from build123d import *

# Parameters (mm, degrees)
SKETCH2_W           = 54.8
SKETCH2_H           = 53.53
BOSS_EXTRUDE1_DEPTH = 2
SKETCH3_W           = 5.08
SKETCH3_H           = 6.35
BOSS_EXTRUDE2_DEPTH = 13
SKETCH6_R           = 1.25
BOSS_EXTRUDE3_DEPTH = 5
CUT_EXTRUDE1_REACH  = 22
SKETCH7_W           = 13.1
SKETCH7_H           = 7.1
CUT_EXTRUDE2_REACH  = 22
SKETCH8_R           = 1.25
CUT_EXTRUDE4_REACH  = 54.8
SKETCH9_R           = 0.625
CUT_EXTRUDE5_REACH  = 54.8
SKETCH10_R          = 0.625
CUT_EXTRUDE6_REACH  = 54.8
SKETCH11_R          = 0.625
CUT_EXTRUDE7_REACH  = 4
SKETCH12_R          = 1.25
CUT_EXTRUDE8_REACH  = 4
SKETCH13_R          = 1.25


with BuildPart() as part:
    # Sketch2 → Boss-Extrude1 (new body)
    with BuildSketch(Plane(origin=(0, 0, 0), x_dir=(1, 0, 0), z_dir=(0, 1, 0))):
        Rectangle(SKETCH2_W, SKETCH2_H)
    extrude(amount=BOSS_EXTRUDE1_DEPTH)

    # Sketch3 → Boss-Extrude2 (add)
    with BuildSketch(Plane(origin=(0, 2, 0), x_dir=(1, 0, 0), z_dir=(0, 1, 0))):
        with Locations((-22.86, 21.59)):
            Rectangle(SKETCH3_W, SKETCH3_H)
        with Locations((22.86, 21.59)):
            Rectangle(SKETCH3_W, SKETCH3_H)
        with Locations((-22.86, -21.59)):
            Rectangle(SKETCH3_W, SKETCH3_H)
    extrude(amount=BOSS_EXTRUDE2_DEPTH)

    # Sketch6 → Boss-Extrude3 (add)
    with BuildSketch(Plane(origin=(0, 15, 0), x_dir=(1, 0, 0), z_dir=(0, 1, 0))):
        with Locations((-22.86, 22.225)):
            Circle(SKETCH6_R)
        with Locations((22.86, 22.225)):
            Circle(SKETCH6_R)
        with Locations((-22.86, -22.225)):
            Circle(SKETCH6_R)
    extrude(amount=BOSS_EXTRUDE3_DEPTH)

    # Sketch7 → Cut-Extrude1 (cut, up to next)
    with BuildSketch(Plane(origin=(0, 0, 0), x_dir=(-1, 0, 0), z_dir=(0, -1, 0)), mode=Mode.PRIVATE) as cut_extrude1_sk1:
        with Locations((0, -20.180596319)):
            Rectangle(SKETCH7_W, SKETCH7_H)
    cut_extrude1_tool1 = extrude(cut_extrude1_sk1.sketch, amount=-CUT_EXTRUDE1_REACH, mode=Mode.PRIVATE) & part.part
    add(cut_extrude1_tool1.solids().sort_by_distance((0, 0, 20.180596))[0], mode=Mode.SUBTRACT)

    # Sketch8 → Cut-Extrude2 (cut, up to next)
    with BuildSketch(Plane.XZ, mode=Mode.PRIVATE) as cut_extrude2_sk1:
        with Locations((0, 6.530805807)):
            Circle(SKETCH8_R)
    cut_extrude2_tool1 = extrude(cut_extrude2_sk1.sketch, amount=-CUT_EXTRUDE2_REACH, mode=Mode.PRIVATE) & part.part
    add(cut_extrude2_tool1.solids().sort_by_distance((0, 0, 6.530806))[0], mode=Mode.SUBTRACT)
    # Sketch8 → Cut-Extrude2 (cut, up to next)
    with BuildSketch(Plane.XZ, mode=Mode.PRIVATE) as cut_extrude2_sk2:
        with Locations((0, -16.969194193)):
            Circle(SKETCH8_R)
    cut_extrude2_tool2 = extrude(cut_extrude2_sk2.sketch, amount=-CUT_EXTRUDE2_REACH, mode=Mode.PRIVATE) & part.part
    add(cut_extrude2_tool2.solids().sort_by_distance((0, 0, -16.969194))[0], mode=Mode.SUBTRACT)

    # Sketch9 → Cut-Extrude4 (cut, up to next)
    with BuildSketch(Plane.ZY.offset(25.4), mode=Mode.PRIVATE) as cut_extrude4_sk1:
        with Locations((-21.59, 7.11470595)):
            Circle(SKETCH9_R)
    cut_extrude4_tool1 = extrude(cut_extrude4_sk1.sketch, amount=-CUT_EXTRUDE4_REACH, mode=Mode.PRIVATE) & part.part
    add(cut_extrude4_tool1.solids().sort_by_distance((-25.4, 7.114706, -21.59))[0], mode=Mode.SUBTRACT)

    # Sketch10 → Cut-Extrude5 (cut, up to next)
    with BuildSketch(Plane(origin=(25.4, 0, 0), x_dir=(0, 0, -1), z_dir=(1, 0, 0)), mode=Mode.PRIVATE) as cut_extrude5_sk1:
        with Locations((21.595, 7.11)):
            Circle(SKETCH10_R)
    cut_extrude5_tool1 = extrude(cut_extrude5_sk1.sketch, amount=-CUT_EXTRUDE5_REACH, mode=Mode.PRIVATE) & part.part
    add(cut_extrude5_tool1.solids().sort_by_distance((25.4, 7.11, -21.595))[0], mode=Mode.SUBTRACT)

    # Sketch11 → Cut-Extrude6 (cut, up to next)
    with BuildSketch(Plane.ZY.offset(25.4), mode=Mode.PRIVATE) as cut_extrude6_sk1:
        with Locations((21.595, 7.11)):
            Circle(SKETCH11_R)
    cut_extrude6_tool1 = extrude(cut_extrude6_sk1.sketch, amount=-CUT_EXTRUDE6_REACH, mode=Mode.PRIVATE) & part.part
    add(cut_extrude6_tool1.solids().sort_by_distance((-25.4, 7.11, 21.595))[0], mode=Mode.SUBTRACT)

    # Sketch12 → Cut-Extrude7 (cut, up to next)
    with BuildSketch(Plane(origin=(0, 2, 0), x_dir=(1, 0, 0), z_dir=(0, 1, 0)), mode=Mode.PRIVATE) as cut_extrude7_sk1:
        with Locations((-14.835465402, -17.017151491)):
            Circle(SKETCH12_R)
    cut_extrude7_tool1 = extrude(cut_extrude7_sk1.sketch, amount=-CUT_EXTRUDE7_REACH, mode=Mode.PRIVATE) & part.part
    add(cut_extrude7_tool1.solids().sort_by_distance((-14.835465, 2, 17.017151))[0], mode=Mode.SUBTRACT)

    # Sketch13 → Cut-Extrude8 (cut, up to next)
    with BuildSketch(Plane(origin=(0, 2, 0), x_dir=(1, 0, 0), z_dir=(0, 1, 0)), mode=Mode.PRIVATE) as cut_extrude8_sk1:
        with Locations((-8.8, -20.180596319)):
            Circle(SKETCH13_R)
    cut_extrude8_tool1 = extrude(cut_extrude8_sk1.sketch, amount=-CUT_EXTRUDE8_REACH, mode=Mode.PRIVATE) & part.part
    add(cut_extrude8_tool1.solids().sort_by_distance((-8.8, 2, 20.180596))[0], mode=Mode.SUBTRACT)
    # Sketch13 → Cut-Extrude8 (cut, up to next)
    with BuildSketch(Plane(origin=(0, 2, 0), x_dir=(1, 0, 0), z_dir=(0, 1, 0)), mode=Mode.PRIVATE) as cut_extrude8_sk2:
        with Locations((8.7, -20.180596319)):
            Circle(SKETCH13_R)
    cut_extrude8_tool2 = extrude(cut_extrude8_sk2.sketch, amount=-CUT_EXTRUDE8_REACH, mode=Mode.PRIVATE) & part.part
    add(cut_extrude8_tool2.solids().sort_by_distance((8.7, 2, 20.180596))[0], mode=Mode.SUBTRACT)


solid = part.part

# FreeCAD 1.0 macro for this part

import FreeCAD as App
import Part
import Sketcher

V = App.Vector
Q = App.Units.Quantity


def add_polygon(sketch, points):
    """Adds a closed chain of lines whose ends are joined by coincident constraints."""
    first, n = sketch.GeometryCount, len(points)
    for a, b in zip(points, points[1:] + points[:1]):
        sketch.addGeometry(Part.LineSegment(App.Vector(*a, 0), App.Vector(*b, 0)), False)
    for i in range(n):
        sketch.addConstraint(Sketcher.Constraint("Coincident", first + i, 2, first + (i + 1) % n, 1))

doc = App.newDocument("Part")
body = doc.addObject("PartDesign::Body", "Body")

sketch1 = body.newObject("Sketcher::SketchObject", "Sketch")
sketch1.AttachmentSupport = (doc.getObject("XZ_Plane"), [""])
sketch1.MapMode = "FlatFace"
add_polygon(sketch1, [(-27.4, -26.765), (-27.4, 26.765), (27.4, 26.765), (27.4, -26.765)])
sketch1.addConstraint([
    Sketcher.Constraint("Vertical", 0),
    Sketcher.Constraint("Horizontal", 1),
    Sketcher.Constraint("Vertical", 2),
    Sketcher.Constraint("Horizontal", 3),
    Sketcher.Constraint("Symmetric", 0, 2, 2, 2, -1, 1),
    Sketcher.Constraint("DistanceX", 1, 1, 1, 2, Q("54.8 mm")),
    Sketcher.Constraint("DistanceY", 0, 1, 0, 2, Q("53.53 mm")),
])
pad1 = body.newObject("PartDesign::Pad", "Pad")
pad1.Profile = sketch1
pad1.Length = 2
pad1.Reversed = True

sketch2 = body.newObject("Sketcher::SketchObject", "Sketch001")
sketch2.AttachmentSupport = (doc.getObject("XZ_Plane"), [""])
sketch2.MapMode = "FlatFace"
sketch2.AttachmentOffset = App.Placement(V(0, 0, -2), App.Rotation())
add_polygon(sketch2, [(-25.4, -24.765), (-25.4, -18.415), (-20.32, -18.415), (-20.32, -24.765)])
add_polygon(sketch2, [(20.32, -24.765), (20.32, -18.415), (25.4, -18.415), (25.4, -24.765)])
add_polygon(sketch2, [(-25.4, 18.415), (-25.4, 24.765), (-20.32, 24.765), (-20.32, 18.415)])
sketch2.addConstraint([
    Sketcher.Constraint("Vertical", 0),
    Sketcher.Constraint("Horizontal", 1),
    Sketcher.Constraint("Vertical", 2),
    Sketcher.Constraint("Horizontal", 3),
    Sketcher.Constraint("Vertical", 4),
    Sketcher.Constraint("Horizontal", 5),
    Sketcher.Constraint("Vertical", 6),
    Sketcher.Constraint("Horizontal", 7),
    Sketcher.Constraint("Vertical", 8),
    Sketcher.Constraint("Horizontal", 9),
    Sketcher.Constraint("Vertical", 10),
    Sketcher.Constraint("Horizontal", 11),
    Sketcher.Constraint("Symmetric", 6, 2, 8, 2, -1, 1),
    Sketcher.Constraint("Symmetric", 4, 2, 10, 2, -1, 1),
    Sketcher.Constraint("Symmetric", 1, 2, 4, 2, -2),
    Sketcher.Constraint("Symmetric", 3, 2, 6, 2, -2),
    Sketcher.Constraint("DistanceX", 1, 1, 1, 2, Q("5.08 mm")),
    Sketcher.Constraint("DistanceY", 0, 1, 0, 2, Q("6.35 mm")),
    Sketcher.Constraint("DistanceX", 0, 2, -1, 1, Q("25.4 mm")),
    Sketcher.Constraint("DistanceY", 0, 2, 8, 2, Q("43.18 mm")),
])
pad2 = body.newObject("PartDesign::Pad", "Pad001")
pad2.Profile = sketch2
pad2.Length = 13
pad2.Reversed = True

sketch3 = body.newObject("Sketcher::SketchObject", "Sketch002")
sketch3.AttachmentSupport = (doc.getObject("XZ_Plane"), [""])
sketch3.MapMode = "FlatFace"
sketch3.AttachmentOffset = App.Placement(V(0, 0, -15), App.Rotation())
sketch3.addGeometry([
    Part.Circle(V(-22.86, -22.225, 0), V(0, 0, 1), 1.25),
    Part.Circle(V(22.86, -22.225, 0), V(0, 0, 1), 1.25),
    Part.Circle(V(-22.86, 22.225, 0), V(0, 0, 1), 1.25),
], False)
sketch3.addConstraint([
    Sketcher.Constraint("Equal", 0, 1),
    Sketcher.Constraint("Equal", 1, 2),
    Sketcher.Constraint("Symmetric", 1, 3, 2, 3, -1, 1),
    Sketcher.Constraint("Symmetric", 0, 3, 1, 3, -2),
    Sketcher.Constraint("Diameter", 0, Q("2.5 mm")),
    Sketcher.Constraint("DistanceX", 0, 3, -1, 1, Q("22.86 mm")),
    Sketcher.Constraint("DistanceY", 0, 3, 2, 3, Q("44.45 mm")),
])
pad3 = body.newObject("PartDesign::Pad", "Pad002")
pad3.Profile = sketch3
pad3.Length = 5
pad3.Reversed = True

sketch4 = body.newObject("Sketcher::SketchObject", "Sketch003")
sketch4.AttachmentSupport = (doc.getObject("XZ_Plane"), [""])
sketch4.MapMode = "FlatFace"
add_polygon(sketch4, [(6.55, 16.630596), (6.55, 23.730596), (-6.55, 23.730596), (-6.55, 16.630596)])
sketch4.addConstraint([
    Sketcher.Constraint("Vertical", 0),
    Sketcher.Constraint("Horizontal", 1),
    Sketcher.Constraint("Vertical", 2),
    Sketcher.Constraint("Horizontal", 3),
    Sketcher.Constraint("DistanceX", 1, 2, 1, 1, Q("13.1 mm")),
    Sketcher.Constraint("DistanceY", 0, 1, 0, 2, Q("7.1 mm")),
    Sketcher.Constraint("DistanceX", -1, 1, 0, 2, Q("6.55 mm")),
    Sketcher.Constraint("DistanceY", -1, 1, 0, 2, Q("23.730596 mm")),
])
pocket1 = body.newObject("PartDesign::Pocket", "Pocket")
pocket1.Profile = sketch4
pocket1.Type = "UpToFirst"

sketch5 = body.newObject("Sketcher::SketchObject", "Sketch004")
sketch5.AttachmentSupport = (doc.getObject("XZ_Plane"), [""])
sketch5.MapMode = "FlatFace"
sketch5.addGeometry(Part.Circle(V(0, 6.530806, 0), V(0, 0, 1), 1.25), False)
sketch5.addConstraint([
    Sketcher.Constraint("PointOnObject", 0, 3, -2),
    Sketcher.Constraint("Diameter", 0, Q("2.5 mm")),
    Sketcher.Constraint("DistanceY", -1, 1, 0, 3, Q("6.530806 mm")),
])
pocket2 = body.newObject("PartDesign::Pocket", "Pocket001")
pocket2.Profile = sketch5
pocket2.Type = "UpToFirst"

sketch6 = body.newObject("Sketcher::SketchObject", "Sketch005")
sketch6.AttachmentSupport = (doc.getObject("XZ_Plane"), [""])
sketch6.MapMode = "FlatFace"
sketch6.addGeometry(Part.Circle(V(0, -16.969194, 0), V(0, 0, 1), 1.25), False)
sketch6.addConstraint([
    Sketcher.Constraint("PointOnObject", 0, 3, -2),
    Sketcher.Constraint("Diameter", 0, Q("2.5 mm")),
    Sketcher.Constraint("DistanceY", 0, 3, -1, 1, Q("16.969194 mm")),
])
pocket3 = body.newObject("PartDesign::Pocket", "Pocket002")
pocket3.Profile = sketch6
pocket3.Type = "UpToFirst"

sketch7 = body.newObject("Sketcher::SketchObject", "Sketch006")
sketch7.AttachmentSupport = (doc.getObject("YZ_Plane"), [""])
sketch7.MapMode = "FlatFace"
sketch7.AttachmentOffset = App.Placement(V(0, 0, -25.4), App.Rotation())
sketch7.addGeometry(Part.Circle(V(7.114706, -21.59, 0), V(0, 0, 1), 0.625), False)
sketch7.addConstraint([
    Sketcher.Constraint("Diameter", 0, Q("1.25 mm")),
    Sketcher.Constraint("DistanceY", 0, 3, -1, 1, Q("21.59 mm")),
    Sketcher.Constraint("DistanceX", -1, 1, 0, 3, Q("7.114706 mm")),
])
pocket4 = body.newObject("PartDesign::Pocket", "Pocket003")
pocket4.Profile = sketch7
pocket4.Type = "UpToFirst"
pocket4.Reversed = True

sketch8 = body.newObject("Sketcher::SketchObject", "Sketch007")
sketch8.AttachmentSupport = (doc.getObject("YZ_Plane"), [""])
sketch8.MapMode = "FlatFace"
sketch8.AttachmentOffset = App.Placement(V(0, 0, 25.4), App.Rotation())
sketch8.addGeometry(Part.Circle(V(7.11, -21.595, 0), V(0, 0, 1), 0.625), False)
sketch8.addConstraint([
    Sketcher.Constraint("Diameter", 0, Q("1.25 mm")),
    Sketcher.Constraint("DistanceX", -1, 1, 0, 3, Q("7.11 mm")),
    Sketcher.Constraint("DistanceY", 0, 3, -1, 1, Q("21.595 mm")),
])
pocket5 = body.newObject("PartDesign::Pocket", "Pocket004")
pocket5.Profile = sketch8
pocket5.Type = "UpToFirst"

sketch9 = body.newObject("Sketcher::SketchObject", "Sketch008")
sketch9.AttachmentSupport = (doc.getObject("YZ_Plane"), [""])
sketch9.MapMode = "FlatFace"
sketch9.AttachmentOffset = App.Placement(V(0, 0, -25.4), App.Rotation())
sketch9.addGeometry(Part.Circle(V(7.11, 21.595, 0), V(0, 0, 1), 0.625), False)
sketch9.addConstraint([
    Sketcher.Constraint("Diameter", 0, Q("1.25 mm")),
    Sketcher.Constraint("DistanceX", -1, 1, 0, 3, Q("7.11 mm")),
    Sketcher.Constraint("DistanceY", -1, 1, 0, 3, Q("21.595 mm")),
])
pocket6 = body.newObject("PartDesign::Pocket", "Pocket005")
pocket6.Profile = sketch9
pocket6.Type = "UpToFirst"
pocket6.Reversed = True

sketch10 = body.newObject("Sketcher::SketchObject", "Sketch009")
sketch10.AttachmentSupport = (doc.getObject("XZ_Plane"), [""])
sketch10.MapMode = "FlatFace"
sketch10.AttachmentOffset = App.Placement(V(0, 0, -2), App.Rotation())
sketch10.addGeometry(Part.Circle(V(-14.835465, 17.017151, 0), V(0, 0, 1), 1.25), False)
sketch10.addConstraint([
    Sketcher.Constraint("Diameter", 0, Q("2.5 mm")),
    Sketcher.Constraint("DistanceY", -1, 1, 0, 3, Q("17.017151 mm")),
    Sketcher.Constraint("DistanceX", 0, 3, -1, 1, Q("14.835465 mm")),
])
pocket7 = body.newObject("PartDesign::Pocket", "Pocket006")
pocket7.Profile = sketch10
pocket7.Type = "UpToFirst"
pocket7.Reversed = True

sketch11 = body.newObject("Sketcher::SketchObject", "Sketch010")
sketch11.AttachmentSupport = (doc.getObject("XZ_Plane"), [""])
sketch11.MapMode = "FlatFace"
sketch11.AttachmentOffset = App.Placement(V(0, 0, -2), App.Rotation())
sketch11.addGeometry(Part.Circle(V(-8.8, 20.180596, 0), V(0, 0, 1), 1.25), False)
sketch11.addConstraint([
    Sketcher.Constraint("Diameter", 0, Q("2.5 mm")),
    Sketcher.Constraint("DistanceX", 0, 3, -1, 1, Q("8.8 mm")),
    Sketcher.Constraint("DistanceY", -1, 1, 0, 3, Q("20.180596 mm")),
])
pocket8 = body.newObject("PartDesign::Pocket", "Pocket007")
pocket8.Profile = sketch11
pocket8.Type = "UpToFirst"
pocket8.Reversed = True

sketch12 = body.newObject("Sketcher::SketchObject", "Sketch011")
sketch12.AttachmentSupport = (doc.getObject("XZ_Plane"), [""])
sketch12.MapMode = "FlatFace"
sketch12.AttachmentOffset = App.Placement(V(0, 0, -2), App.Rotation())
sketch12.addGeometry(Part.Circle(V(8.7, 20.180596, 0), V(0, 0, 1), 1.25), False)
sketch12.addConstraint([
    Sketcher.Constraint("Diameter", 0, Q("2.5 mm")),
    Sketcher.Constraint("DistanceX", -1, 1, 0, 3, Q("8.7 mm")),
    Sketcher.Constraint("DistanceY", -1, 1, 0, 3, Q("20.180596 mm")),
])
pocket9 = body.newObject("PartDesign::Pocket", "Pocket008")
pocket9.Profile = sketch12
pocket9.Type = "UpToFirst"
pocket9.Reversed = True

doc.recompute()
